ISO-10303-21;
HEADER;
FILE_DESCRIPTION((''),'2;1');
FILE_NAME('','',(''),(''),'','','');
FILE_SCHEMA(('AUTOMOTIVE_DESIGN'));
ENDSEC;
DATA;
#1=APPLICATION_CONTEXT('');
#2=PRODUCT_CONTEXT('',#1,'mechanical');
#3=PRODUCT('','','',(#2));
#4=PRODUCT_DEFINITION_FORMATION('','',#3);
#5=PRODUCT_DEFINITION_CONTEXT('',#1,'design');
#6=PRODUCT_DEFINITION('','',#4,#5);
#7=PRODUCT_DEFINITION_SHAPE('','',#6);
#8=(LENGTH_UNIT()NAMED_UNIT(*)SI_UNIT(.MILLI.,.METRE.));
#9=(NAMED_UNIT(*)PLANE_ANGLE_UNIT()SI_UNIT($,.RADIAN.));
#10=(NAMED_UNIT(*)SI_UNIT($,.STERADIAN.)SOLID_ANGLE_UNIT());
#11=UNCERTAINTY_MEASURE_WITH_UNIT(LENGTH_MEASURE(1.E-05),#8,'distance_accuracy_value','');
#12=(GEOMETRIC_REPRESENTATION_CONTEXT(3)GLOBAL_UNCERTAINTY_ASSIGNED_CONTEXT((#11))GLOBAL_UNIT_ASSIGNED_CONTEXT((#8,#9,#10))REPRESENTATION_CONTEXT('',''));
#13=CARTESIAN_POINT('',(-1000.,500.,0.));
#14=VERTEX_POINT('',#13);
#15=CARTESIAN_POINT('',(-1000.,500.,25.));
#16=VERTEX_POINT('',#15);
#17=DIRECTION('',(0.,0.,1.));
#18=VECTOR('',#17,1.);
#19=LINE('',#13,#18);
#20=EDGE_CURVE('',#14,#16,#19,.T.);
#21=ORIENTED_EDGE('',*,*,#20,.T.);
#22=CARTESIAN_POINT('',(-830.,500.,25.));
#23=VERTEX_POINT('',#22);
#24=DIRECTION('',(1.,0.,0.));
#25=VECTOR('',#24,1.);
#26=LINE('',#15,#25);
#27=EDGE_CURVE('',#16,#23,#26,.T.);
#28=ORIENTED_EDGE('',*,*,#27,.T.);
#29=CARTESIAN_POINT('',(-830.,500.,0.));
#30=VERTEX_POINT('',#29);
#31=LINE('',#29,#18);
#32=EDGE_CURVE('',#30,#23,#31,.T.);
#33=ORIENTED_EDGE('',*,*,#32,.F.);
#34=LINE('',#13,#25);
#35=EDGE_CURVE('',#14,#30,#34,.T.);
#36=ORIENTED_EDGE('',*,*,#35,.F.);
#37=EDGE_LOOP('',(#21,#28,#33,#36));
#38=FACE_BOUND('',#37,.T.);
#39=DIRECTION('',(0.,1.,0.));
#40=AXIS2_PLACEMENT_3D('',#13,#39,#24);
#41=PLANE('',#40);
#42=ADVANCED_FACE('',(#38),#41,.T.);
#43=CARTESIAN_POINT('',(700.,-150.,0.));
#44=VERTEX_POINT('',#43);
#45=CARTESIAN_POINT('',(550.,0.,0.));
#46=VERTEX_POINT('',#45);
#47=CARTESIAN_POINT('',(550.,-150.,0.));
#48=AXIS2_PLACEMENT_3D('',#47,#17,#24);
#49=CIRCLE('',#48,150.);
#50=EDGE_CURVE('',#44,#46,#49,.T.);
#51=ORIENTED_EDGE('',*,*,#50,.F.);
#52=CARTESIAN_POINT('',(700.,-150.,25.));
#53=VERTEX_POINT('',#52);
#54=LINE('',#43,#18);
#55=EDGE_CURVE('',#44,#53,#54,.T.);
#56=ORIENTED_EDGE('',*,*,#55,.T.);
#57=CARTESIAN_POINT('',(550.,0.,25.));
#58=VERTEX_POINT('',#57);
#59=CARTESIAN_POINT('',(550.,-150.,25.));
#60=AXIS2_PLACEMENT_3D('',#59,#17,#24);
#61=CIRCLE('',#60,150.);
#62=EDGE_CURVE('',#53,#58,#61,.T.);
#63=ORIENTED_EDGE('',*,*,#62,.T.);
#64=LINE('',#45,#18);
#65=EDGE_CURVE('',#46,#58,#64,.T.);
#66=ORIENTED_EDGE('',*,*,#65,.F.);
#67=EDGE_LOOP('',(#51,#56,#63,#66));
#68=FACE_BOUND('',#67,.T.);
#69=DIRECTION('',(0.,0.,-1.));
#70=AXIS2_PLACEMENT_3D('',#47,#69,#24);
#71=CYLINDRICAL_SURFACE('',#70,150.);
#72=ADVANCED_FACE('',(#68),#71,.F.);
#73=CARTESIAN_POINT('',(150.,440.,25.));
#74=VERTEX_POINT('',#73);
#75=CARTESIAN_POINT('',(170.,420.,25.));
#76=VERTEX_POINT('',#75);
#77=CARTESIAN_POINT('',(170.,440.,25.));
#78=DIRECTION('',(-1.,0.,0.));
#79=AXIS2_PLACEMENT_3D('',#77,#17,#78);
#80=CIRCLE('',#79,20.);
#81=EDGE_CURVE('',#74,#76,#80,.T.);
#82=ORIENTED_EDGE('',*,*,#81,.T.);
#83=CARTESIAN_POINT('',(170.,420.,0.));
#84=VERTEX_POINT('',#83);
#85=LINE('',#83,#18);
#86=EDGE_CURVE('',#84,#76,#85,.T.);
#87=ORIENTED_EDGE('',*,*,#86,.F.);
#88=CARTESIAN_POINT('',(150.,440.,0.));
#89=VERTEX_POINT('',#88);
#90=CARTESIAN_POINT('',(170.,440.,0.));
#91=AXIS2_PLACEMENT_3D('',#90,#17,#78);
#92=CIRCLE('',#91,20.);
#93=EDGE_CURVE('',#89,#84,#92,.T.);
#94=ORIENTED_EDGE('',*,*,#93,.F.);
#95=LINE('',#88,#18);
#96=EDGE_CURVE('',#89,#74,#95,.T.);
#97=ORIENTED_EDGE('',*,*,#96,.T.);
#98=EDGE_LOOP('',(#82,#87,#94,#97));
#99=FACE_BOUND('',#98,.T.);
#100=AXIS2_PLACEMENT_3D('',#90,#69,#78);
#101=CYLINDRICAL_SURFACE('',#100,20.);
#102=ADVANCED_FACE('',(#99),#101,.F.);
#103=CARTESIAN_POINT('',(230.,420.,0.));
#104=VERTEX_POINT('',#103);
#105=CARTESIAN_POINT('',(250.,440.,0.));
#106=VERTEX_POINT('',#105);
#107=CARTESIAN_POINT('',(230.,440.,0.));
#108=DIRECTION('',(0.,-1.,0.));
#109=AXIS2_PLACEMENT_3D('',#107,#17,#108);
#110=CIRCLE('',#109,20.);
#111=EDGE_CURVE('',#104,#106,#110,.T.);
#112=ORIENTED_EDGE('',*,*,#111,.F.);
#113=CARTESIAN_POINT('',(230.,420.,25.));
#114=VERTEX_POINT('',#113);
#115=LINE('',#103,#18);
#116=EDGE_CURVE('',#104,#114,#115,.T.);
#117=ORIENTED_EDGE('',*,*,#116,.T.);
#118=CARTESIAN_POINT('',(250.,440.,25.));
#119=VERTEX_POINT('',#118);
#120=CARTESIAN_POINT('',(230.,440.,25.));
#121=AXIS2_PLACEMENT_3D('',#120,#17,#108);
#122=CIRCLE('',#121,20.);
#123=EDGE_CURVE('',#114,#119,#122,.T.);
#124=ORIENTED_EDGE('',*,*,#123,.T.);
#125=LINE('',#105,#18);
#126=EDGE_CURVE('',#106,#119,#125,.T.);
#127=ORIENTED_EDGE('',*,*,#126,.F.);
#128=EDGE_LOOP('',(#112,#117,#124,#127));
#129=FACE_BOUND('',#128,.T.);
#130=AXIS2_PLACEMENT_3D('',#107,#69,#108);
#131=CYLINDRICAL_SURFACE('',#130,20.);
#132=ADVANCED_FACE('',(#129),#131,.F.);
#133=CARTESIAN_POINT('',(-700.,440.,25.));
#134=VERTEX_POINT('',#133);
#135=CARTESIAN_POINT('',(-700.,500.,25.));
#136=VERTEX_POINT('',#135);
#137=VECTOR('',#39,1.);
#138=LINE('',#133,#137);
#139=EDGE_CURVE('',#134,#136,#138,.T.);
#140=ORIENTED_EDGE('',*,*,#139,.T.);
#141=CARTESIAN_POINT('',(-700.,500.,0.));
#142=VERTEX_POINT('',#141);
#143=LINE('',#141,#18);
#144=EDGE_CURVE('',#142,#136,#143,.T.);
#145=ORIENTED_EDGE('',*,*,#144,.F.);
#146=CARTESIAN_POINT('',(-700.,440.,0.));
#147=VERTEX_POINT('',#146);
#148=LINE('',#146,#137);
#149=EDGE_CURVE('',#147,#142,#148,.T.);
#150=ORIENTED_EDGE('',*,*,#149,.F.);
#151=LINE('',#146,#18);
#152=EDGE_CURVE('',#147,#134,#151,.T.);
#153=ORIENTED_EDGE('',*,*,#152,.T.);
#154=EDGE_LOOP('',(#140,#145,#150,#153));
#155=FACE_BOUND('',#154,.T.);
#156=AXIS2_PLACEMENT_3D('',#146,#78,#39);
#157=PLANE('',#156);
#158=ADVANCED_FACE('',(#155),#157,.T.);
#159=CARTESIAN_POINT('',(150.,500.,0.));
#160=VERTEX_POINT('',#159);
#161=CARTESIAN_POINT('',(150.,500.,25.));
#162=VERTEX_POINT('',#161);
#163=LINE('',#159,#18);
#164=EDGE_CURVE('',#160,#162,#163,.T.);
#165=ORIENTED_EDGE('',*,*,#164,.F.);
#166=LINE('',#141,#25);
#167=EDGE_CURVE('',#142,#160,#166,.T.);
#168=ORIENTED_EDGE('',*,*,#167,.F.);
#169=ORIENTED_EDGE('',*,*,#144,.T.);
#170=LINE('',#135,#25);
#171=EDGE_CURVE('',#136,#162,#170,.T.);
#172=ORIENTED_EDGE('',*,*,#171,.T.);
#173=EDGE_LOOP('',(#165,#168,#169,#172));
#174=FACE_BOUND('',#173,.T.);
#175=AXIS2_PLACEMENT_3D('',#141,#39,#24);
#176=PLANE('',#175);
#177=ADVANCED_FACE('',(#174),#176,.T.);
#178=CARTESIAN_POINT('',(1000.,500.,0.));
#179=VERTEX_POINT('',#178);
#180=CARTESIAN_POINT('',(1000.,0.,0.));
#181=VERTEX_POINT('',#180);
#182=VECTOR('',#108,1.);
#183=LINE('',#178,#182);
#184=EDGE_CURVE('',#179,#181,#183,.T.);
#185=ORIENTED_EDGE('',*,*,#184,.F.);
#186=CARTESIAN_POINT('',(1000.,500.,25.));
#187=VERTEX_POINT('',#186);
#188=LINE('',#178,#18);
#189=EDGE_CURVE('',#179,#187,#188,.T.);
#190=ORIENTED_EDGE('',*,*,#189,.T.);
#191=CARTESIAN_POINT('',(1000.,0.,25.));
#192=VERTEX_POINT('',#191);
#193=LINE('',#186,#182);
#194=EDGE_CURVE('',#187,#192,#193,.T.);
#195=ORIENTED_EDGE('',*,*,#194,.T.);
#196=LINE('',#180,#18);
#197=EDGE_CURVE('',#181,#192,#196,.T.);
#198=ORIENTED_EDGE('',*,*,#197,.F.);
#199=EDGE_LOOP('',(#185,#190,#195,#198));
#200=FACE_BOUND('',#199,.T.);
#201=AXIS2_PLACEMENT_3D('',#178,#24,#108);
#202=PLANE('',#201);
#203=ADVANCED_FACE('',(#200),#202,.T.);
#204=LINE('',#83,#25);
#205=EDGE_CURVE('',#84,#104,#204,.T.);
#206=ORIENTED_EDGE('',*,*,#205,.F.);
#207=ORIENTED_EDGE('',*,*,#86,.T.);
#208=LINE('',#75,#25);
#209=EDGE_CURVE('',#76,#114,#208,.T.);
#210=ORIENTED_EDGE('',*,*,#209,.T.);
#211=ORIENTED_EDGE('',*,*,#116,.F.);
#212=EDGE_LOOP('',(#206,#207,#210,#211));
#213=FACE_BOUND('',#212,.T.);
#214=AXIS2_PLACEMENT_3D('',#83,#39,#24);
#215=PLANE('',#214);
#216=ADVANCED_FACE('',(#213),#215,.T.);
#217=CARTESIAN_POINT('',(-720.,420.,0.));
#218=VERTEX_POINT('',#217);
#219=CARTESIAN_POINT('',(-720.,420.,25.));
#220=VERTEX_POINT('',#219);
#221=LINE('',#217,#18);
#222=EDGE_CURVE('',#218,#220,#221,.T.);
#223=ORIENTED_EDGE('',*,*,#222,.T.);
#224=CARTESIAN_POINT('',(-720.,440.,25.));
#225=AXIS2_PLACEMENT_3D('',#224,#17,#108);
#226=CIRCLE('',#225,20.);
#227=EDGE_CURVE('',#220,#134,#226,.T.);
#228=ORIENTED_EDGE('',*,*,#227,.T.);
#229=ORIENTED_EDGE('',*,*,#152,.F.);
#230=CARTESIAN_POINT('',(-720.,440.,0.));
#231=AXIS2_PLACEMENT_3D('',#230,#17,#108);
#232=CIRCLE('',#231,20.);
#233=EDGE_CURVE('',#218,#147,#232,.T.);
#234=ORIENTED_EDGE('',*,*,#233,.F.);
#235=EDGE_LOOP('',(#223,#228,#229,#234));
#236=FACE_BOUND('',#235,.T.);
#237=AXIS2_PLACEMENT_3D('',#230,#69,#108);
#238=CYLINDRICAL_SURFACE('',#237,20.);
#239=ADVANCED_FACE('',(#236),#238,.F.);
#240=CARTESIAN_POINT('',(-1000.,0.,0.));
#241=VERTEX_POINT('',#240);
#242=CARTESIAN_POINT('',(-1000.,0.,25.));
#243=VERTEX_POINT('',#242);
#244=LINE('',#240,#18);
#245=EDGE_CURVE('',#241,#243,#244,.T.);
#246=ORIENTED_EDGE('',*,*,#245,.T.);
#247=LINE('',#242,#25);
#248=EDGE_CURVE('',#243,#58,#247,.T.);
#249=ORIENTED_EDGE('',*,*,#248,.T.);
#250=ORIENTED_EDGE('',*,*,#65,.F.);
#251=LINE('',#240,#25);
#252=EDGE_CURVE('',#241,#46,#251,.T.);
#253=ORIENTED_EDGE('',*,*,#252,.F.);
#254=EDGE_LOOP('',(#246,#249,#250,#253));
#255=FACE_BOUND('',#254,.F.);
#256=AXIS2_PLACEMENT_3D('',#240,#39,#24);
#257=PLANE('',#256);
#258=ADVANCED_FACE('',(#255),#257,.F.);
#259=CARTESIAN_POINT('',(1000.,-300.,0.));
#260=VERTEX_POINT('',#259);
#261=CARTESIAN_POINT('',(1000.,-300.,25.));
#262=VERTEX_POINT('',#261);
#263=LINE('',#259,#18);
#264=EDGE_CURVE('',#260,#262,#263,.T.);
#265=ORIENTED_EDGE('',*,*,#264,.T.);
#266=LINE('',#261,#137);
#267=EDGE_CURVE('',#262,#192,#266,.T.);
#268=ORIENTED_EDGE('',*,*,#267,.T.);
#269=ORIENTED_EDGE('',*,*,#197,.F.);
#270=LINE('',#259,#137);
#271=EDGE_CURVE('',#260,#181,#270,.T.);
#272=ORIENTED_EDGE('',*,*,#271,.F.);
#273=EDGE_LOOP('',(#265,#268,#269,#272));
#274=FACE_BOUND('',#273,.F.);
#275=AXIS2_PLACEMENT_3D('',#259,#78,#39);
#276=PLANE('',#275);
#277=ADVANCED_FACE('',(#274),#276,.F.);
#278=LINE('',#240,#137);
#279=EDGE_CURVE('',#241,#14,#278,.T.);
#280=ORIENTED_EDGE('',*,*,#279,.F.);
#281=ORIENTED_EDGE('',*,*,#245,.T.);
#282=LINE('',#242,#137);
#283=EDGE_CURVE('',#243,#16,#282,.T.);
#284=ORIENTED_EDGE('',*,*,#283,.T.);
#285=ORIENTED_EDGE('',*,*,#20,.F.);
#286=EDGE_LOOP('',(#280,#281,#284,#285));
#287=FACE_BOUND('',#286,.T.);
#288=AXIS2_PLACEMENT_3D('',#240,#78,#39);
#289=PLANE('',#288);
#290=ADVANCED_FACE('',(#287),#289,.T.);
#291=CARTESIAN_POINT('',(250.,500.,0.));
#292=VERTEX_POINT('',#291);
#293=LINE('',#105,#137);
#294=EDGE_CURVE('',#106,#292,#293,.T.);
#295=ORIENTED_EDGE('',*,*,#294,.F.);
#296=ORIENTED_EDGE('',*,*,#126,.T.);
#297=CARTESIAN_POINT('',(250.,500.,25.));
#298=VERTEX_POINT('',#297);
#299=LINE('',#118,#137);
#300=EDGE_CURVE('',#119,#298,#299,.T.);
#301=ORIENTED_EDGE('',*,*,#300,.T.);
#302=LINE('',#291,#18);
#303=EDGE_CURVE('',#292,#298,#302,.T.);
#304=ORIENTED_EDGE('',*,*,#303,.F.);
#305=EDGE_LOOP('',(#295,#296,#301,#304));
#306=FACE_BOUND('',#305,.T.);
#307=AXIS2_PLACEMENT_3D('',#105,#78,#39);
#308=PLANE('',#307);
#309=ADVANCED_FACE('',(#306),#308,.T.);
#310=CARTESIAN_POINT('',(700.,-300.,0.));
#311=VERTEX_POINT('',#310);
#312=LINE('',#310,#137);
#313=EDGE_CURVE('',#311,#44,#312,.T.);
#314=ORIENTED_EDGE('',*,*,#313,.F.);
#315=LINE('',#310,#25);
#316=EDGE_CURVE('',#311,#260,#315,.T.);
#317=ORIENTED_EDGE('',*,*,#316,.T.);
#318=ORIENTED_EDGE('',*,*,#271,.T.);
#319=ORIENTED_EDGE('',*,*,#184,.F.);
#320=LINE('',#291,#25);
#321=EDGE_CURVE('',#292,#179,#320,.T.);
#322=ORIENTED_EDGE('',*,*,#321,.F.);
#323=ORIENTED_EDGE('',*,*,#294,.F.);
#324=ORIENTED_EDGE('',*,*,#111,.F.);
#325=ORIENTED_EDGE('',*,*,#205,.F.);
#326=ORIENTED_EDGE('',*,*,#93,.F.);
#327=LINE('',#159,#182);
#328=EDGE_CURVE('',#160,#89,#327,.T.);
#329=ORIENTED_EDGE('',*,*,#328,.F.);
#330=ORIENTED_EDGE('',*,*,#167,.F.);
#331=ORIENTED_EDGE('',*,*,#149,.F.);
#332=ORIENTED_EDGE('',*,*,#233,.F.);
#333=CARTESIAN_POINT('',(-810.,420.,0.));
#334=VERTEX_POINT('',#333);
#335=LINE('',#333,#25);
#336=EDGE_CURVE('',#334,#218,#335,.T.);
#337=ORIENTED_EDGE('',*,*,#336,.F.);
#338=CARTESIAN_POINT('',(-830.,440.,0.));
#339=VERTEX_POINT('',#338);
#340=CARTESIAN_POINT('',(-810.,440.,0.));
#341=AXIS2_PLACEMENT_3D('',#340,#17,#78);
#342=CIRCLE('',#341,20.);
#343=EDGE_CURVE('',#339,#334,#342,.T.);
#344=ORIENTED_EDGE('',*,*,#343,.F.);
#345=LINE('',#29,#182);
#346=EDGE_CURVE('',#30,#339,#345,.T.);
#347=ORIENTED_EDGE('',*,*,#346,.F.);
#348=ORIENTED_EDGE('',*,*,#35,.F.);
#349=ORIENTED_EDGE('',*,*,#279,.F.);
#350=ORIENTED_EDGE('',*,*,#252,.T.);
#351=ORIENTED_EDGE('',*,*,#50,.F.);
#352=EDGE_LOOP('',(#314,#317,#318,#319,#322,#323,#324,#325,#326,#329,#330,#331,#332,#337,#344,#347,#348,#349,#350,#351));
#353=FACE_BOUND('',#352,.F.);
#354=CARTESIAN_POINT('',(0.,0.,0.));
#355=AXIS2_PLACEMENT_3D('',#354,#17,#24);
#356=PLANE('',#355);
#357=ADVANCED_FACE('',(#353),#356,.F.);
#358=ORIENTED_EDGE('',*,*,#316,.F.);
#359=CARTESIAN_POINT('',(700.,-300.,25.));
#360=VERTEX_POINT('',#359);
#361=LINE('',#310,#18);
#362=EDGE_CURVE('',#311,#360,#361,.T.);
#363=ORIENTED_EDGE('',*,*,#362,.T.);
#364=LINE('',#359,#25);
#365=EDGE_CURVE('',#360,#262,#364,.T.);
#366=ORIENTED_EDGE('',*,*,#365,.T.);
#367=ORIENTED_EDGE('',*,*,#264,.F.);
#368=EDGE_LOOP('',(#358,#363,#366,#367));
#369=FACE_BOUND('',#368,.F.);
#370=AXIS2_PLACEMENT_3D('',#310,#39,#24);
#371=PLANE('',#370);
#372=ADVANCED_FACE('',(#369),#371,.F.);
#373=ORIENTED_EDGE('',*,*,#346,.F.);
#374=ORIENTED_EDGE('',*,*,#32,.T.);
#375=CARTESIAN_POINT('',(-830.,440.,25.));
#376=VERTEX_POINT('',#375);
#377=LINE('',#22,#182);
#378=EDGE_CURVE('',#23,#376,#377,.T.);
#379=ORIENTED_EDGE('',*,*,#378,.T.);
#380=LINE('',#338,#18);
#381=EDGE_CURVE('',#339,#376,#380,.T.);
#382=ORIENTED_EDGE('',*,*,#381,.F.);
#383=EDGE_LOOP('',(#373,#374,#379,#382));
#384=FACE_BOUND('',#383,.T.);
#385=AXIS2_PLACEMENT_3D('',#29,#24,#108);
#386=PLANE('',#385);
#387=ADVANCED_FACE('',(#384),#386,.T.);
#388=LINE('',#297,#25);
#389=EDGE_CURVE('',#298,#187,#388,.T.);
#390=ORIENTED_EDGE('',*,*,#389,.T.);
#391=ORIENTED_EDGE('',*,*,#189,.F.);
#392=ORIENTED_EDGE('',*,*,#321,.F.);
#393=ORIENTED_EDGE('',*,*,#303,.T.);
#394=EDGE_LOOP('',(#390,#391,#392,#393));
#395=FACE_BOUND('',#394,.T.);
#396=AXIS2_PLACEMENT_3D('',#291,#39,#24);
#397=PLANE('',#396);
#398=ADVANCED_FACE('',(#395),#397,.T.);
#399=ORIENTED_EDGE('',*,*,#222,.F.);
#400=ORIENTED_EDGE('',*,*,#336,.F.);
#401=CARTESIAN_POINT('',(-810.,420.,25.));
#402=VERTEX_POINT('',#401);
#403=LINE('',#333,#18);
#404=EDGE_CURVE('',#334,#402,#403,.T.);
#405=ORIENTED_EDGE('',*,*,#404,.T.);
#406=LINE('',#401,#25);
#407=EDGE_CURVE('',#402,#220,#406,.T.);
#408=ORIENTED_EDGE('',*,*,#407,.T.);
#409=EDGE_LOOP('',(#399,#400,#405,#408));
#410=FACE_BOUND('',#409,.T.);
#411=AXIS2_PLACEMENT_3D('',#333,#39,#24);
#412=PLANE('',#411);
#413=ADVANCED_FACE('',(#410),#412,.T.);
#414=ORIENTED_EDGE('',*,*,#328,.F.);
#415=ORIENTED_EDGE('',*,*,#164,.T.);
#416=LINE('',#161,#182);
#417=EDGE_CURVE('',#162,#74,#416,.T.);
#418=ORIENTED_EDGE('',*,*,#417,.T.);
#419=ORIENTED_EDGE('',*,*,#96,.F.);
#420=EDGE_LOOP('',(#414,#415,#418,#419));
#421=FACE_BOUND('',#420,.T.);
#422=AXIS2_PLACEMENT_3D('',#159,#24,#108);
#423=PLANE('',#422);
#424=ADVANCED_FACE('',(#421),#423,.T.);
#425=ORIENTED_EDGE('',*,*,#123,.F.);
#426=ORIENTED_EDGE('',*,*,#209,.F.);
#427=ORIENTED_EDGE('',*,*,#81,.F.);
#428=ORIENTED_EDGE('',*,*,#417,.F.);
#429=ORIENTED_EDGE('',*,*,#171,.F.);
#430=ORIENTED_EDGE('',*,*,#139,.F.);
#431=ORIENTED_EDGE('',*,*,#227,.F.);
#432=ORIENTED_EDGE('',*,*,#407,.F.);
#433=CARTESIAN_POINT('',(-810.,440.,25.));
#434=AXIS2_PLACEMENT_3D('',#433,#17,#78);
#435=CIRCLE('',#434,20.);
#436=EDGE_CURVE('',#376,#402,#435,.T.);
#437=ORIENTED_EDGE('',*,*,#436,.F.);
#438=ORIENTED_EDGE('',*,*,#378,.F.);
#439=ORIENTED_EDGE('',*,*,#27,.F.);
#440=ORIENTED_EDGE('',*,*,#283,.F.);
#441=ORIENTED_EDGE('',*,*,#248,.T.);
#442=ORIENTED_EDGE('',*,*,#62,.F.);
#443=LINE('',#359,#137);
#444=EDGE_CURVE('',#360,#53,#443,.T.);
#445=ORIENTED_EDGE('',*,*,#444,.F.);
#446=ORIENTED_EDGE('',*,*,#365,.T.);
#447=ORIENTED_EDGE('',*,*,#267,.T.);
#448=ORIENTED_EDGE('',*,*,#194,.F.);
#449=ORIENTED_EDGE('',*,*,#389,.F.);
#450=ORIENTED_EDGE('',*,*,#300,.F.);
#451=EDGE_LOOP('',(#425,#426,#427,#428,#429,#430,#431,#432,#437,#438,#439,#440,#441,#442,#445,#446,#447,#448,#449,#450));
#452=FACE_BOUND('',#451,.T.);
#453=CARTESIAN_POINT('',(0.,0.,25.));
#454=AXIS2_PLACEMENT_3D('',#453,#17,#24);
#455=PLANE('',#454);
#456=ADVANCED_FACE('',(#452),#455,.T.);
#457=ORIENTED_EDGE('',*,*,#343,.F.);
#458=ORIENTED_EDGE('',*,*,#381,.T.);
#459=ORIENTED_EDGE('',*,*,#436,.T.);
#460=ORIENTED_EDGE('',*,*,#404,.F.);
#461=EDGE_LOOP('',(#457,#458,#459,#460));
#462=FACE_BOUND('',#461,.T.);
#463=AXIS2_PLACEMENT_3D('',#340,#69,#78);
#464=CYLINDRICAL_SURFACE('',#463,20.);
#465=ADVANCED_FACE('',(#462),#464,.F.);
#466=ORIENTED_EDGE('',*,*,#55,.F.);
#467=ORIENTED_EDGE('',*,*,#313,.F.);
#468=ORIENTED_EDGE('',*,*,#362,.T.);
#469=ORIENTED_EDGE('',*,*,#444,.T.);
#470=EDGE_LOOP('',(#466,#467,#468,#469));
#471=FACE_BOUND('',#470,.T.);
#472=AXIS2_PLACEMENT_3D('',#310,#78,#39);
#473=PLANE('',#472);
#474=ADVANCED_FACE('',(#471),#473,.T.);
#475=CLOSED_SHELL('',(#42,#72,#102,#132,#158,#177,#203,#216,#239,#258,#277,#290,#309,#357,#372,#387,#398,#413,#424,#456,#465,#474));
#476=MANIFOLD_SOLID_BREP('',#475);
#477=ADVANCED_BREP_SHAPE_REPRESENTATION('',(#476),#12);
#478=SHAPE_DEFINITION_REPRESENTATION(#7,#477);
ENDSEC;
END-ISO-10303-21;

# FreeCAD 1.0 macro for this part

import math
import FreeCAD as App
import Part
import Sketcher

V = App.Vector

doc = App.newDocument("Part")
params = doc.addObject("Spreadsheet::Sheet", "Params")
for row, (alias, value) in enumerate([
    ("sketch1_radius", "20 mm"),
    ("sketch1_radius2", "150 mm"),
    ("sketch1_width", "850 mm"),
    ("sketch1_width2", "170 mm"),
    ("sketch1_width3", "1550 mm"),
    ("pad1_length", "25 mm"),
], start=1):
    params.set(f"A{row}", alias)
    params.set(f"B{row}", "=" + value)
    params.setAlias(f"B{row}", alias)

body = doc.addObject("PartDesign::Body", "Body")

sketch1 = body.newObject("Sketcher::SketchObject", "Sketch")
sketch1.AttachmentSupport = (doc.getObject("XY_Plane"), [""])
sketch1.MapMode = "FlatFace"
sketch1.addGeometry([
    Part.LineSegment(V(1000, -300, 0), V(1000, 500, 0)),
    Part.LineSegment(V(1000, 500, 0), V(250, 500, 0)),
    Part.LineSegment(V(250, 500, 0), V(250, 440, 0)),
    Part.ArcOfCircle(Part.Circle(V(230, 440, 0), V(0, 0, 1), 20), math.radians(-90), math.radians(0)),
    Part.LineSegment(V(230, 420, 0), V(170, 420, 0)),
    Part.ArcOfCircle(Part.Circle(V(170, 440, 0), V(0, 0, 1), 20), math.radians(180), math.radians(270)),
    Part.LineSegment(V(150, 440, 0), V(150, 500, 0)),
    Part.LineSegment(V(150, 500, 0), V(-700, 500, 0)),
    Part.LineSegment(V(-700, 500, 0), V(-700, 440, 0)),
    Part.ArcOfCircle(Part.Circle(V(-720, 440, 0), V(0, 0, 1), 20), math.radians(-90), math.radians(0)),
    Part.LineSegment(V(-720, 420, 0), V(-810, 420, 0)),
    Part.ArcOfCircle(Part.Circle(V(-810, 440, 0), V(0, 0, 1), 20), math.radians(180), math.radians(270)),
    Part.LineSegment(V(-830, 440, 0), V(-830, 500, 0)),
    Part.LineSegment(V(-830, 500, 0), V(-1000, 500, 0)),
    Part.LineSegment(V(-1000, 500, 0), V(-1000, 0, 0)),
    Part.LineSegment(V(-1000, 0, 0), V(550, 0, 0)),
    Part.ArcOfCircle(Part.Circle(V(550, -150, 0), V(0, 0, 1), 150), math.radians(0), math.radians(90)),
    Part.LineSegment(V(700, -150, 0), V(700, -300, 0)),
    Part.LineSegment(V(700, -300, 0), V(1000, -300, 0)),
], False)
sketch1.addConstraint([
    Sketcher.Constraint("Coincident", 0, 2, 1, 1),
    Sketcher.Constraint("Coincident", 1, 2, 2, 1),
    Sketcher.Constraint("Tangent", 2, 2, 3, 2),
    Sketcher.Constraint("Tangent", 3, 1, 4, 1),
    Sketcher.Constraint("Tangent", 4, 2, 5, 2),
    Sketcher.Constraint("Tangent", 5, 1, 6, 1),
    Sketcher.Constraint("Coincident", 6, 2, 7, 1),
    Sketcher.Constraint("Coincident", 7, 2, 8, 1),
    Sketcher.Constraint("Tangent", 8, 2, 9, 2),
    Sketcher.Constraint("Tangent", 9, 1, 10, 1),
    Sketcher.Constraint("Tangent", 10, 2, 11, 2),
    Sketcher.Constraint("Tangent", 11, 1, 12, 1),
    Sketcher.Constraint("Coincident", 12, 2, 13, 1),
    Sketcher.Constraint("Coincident", 13, 2, 14, 1),
    Sketcher.Constraint("Coincident", 14, 2, 15, 1),
    Sketcher.Constraint("Tangent", 15, 2, 16, 2),
    Sketcher.Constraint("Tangent", 16, 1, 17, 1),
    Sketcher.Constraint("Coincident", 17, 2, 18, 1),
    Sketcher.Constraint("Coincident", 18, 2, 0, 1),
    Sketcher.Constraint("Vertical", 0),
    Sketcher.Constraint("Horizontal", 1),
    Sketcher.Constraint("Vertical", 2),
    Sketcher.Constraint("Horizontal", 4),
    Sketcher.Constraint("Vertical", 6),
    Sketcher.Constraint("Horizontal", 7),
    Sketcher.Constraint("Vertical", 8),
    Sketcher.Constraint("Horizontal", 10),
    Sketcher.Constraint("Vertical", 12),
    Sketcher.Constraint("Horizontal", 13),
    Sketcher.Constraint("Vertical", 14),
    Sketcher.Constraint("Horizontal", 15),
    Sketcher.Constraint("Vertical", 17),
    Sketcher.Constraint("Horizontal", 18),
    Sketcher.Constraint("Equal", 3, 5),
    Sketcher.Constraint("Equal", 5, 9),
    Sketcher.Constraint("Equal", 9, 11),
    Sketcher.Constraint("Symmetric", 0, 2, 13, 2, -2),
    Sketcher.Constraint("PointOnObject", 14, 2, -1),
    Sketcher.Constraint("Horizontal", 5, 3, 9, 3),
    Sketcher.Constraint("Horizontal", 1, 2, 6, 2),
    Sketcher.Constraint("Equal", 4, 2),
    Sketcher.Constraint("Radius", 3, 20.0),
    Sketcher.Constraint("Radius", 16, 150.0),
    Sketcher.Constraint("DistanceX", 7, 2, 7, 1, 850.0),
    Sketcher.Constraint("DistanceX", 13, 2, 13, 1, 170.0),
    Sketcher.Constraint("DistanceX", 15, 1, 15, 2, 1550.0),
    Sketcher.Constraint("DistanceX", 18, 1, 18, 2, 300.0),
    Sketcher.Constraint("DistanceY", 14, 2, 14, 1, 500.0),
    Sketcher.Constraint("DistanceY", 17, 2, 17, 1, 150.0),
    Sketcher.Constraint("DistanceX", -1, 1, 5, 3, 170.0),
    Sketcher.Constraint("DistanceX", 5, 3, 1, 2, 80.0),
])
sketch1.setExpression("Constraints[41]", "Params.sketch1_radius")
sketch1.setExpression("Constraints[42]", "Params.sketch1_radius2")
sketch1.setExpression("Constraints[43]", "Params.sketch1_width")
sketch1.setExpression("Constraints[44]", "Params.sketch1_width2")
sketch1.setExpression("Constraints[45]", "Params.sketch1_width3")
pad1 = body.newObject("PartDesign::Pad", "Pad")
pad1.Profile = sketch1
pad1.setExpression("Length", "Params.pad1_length")

doc.recompute()
